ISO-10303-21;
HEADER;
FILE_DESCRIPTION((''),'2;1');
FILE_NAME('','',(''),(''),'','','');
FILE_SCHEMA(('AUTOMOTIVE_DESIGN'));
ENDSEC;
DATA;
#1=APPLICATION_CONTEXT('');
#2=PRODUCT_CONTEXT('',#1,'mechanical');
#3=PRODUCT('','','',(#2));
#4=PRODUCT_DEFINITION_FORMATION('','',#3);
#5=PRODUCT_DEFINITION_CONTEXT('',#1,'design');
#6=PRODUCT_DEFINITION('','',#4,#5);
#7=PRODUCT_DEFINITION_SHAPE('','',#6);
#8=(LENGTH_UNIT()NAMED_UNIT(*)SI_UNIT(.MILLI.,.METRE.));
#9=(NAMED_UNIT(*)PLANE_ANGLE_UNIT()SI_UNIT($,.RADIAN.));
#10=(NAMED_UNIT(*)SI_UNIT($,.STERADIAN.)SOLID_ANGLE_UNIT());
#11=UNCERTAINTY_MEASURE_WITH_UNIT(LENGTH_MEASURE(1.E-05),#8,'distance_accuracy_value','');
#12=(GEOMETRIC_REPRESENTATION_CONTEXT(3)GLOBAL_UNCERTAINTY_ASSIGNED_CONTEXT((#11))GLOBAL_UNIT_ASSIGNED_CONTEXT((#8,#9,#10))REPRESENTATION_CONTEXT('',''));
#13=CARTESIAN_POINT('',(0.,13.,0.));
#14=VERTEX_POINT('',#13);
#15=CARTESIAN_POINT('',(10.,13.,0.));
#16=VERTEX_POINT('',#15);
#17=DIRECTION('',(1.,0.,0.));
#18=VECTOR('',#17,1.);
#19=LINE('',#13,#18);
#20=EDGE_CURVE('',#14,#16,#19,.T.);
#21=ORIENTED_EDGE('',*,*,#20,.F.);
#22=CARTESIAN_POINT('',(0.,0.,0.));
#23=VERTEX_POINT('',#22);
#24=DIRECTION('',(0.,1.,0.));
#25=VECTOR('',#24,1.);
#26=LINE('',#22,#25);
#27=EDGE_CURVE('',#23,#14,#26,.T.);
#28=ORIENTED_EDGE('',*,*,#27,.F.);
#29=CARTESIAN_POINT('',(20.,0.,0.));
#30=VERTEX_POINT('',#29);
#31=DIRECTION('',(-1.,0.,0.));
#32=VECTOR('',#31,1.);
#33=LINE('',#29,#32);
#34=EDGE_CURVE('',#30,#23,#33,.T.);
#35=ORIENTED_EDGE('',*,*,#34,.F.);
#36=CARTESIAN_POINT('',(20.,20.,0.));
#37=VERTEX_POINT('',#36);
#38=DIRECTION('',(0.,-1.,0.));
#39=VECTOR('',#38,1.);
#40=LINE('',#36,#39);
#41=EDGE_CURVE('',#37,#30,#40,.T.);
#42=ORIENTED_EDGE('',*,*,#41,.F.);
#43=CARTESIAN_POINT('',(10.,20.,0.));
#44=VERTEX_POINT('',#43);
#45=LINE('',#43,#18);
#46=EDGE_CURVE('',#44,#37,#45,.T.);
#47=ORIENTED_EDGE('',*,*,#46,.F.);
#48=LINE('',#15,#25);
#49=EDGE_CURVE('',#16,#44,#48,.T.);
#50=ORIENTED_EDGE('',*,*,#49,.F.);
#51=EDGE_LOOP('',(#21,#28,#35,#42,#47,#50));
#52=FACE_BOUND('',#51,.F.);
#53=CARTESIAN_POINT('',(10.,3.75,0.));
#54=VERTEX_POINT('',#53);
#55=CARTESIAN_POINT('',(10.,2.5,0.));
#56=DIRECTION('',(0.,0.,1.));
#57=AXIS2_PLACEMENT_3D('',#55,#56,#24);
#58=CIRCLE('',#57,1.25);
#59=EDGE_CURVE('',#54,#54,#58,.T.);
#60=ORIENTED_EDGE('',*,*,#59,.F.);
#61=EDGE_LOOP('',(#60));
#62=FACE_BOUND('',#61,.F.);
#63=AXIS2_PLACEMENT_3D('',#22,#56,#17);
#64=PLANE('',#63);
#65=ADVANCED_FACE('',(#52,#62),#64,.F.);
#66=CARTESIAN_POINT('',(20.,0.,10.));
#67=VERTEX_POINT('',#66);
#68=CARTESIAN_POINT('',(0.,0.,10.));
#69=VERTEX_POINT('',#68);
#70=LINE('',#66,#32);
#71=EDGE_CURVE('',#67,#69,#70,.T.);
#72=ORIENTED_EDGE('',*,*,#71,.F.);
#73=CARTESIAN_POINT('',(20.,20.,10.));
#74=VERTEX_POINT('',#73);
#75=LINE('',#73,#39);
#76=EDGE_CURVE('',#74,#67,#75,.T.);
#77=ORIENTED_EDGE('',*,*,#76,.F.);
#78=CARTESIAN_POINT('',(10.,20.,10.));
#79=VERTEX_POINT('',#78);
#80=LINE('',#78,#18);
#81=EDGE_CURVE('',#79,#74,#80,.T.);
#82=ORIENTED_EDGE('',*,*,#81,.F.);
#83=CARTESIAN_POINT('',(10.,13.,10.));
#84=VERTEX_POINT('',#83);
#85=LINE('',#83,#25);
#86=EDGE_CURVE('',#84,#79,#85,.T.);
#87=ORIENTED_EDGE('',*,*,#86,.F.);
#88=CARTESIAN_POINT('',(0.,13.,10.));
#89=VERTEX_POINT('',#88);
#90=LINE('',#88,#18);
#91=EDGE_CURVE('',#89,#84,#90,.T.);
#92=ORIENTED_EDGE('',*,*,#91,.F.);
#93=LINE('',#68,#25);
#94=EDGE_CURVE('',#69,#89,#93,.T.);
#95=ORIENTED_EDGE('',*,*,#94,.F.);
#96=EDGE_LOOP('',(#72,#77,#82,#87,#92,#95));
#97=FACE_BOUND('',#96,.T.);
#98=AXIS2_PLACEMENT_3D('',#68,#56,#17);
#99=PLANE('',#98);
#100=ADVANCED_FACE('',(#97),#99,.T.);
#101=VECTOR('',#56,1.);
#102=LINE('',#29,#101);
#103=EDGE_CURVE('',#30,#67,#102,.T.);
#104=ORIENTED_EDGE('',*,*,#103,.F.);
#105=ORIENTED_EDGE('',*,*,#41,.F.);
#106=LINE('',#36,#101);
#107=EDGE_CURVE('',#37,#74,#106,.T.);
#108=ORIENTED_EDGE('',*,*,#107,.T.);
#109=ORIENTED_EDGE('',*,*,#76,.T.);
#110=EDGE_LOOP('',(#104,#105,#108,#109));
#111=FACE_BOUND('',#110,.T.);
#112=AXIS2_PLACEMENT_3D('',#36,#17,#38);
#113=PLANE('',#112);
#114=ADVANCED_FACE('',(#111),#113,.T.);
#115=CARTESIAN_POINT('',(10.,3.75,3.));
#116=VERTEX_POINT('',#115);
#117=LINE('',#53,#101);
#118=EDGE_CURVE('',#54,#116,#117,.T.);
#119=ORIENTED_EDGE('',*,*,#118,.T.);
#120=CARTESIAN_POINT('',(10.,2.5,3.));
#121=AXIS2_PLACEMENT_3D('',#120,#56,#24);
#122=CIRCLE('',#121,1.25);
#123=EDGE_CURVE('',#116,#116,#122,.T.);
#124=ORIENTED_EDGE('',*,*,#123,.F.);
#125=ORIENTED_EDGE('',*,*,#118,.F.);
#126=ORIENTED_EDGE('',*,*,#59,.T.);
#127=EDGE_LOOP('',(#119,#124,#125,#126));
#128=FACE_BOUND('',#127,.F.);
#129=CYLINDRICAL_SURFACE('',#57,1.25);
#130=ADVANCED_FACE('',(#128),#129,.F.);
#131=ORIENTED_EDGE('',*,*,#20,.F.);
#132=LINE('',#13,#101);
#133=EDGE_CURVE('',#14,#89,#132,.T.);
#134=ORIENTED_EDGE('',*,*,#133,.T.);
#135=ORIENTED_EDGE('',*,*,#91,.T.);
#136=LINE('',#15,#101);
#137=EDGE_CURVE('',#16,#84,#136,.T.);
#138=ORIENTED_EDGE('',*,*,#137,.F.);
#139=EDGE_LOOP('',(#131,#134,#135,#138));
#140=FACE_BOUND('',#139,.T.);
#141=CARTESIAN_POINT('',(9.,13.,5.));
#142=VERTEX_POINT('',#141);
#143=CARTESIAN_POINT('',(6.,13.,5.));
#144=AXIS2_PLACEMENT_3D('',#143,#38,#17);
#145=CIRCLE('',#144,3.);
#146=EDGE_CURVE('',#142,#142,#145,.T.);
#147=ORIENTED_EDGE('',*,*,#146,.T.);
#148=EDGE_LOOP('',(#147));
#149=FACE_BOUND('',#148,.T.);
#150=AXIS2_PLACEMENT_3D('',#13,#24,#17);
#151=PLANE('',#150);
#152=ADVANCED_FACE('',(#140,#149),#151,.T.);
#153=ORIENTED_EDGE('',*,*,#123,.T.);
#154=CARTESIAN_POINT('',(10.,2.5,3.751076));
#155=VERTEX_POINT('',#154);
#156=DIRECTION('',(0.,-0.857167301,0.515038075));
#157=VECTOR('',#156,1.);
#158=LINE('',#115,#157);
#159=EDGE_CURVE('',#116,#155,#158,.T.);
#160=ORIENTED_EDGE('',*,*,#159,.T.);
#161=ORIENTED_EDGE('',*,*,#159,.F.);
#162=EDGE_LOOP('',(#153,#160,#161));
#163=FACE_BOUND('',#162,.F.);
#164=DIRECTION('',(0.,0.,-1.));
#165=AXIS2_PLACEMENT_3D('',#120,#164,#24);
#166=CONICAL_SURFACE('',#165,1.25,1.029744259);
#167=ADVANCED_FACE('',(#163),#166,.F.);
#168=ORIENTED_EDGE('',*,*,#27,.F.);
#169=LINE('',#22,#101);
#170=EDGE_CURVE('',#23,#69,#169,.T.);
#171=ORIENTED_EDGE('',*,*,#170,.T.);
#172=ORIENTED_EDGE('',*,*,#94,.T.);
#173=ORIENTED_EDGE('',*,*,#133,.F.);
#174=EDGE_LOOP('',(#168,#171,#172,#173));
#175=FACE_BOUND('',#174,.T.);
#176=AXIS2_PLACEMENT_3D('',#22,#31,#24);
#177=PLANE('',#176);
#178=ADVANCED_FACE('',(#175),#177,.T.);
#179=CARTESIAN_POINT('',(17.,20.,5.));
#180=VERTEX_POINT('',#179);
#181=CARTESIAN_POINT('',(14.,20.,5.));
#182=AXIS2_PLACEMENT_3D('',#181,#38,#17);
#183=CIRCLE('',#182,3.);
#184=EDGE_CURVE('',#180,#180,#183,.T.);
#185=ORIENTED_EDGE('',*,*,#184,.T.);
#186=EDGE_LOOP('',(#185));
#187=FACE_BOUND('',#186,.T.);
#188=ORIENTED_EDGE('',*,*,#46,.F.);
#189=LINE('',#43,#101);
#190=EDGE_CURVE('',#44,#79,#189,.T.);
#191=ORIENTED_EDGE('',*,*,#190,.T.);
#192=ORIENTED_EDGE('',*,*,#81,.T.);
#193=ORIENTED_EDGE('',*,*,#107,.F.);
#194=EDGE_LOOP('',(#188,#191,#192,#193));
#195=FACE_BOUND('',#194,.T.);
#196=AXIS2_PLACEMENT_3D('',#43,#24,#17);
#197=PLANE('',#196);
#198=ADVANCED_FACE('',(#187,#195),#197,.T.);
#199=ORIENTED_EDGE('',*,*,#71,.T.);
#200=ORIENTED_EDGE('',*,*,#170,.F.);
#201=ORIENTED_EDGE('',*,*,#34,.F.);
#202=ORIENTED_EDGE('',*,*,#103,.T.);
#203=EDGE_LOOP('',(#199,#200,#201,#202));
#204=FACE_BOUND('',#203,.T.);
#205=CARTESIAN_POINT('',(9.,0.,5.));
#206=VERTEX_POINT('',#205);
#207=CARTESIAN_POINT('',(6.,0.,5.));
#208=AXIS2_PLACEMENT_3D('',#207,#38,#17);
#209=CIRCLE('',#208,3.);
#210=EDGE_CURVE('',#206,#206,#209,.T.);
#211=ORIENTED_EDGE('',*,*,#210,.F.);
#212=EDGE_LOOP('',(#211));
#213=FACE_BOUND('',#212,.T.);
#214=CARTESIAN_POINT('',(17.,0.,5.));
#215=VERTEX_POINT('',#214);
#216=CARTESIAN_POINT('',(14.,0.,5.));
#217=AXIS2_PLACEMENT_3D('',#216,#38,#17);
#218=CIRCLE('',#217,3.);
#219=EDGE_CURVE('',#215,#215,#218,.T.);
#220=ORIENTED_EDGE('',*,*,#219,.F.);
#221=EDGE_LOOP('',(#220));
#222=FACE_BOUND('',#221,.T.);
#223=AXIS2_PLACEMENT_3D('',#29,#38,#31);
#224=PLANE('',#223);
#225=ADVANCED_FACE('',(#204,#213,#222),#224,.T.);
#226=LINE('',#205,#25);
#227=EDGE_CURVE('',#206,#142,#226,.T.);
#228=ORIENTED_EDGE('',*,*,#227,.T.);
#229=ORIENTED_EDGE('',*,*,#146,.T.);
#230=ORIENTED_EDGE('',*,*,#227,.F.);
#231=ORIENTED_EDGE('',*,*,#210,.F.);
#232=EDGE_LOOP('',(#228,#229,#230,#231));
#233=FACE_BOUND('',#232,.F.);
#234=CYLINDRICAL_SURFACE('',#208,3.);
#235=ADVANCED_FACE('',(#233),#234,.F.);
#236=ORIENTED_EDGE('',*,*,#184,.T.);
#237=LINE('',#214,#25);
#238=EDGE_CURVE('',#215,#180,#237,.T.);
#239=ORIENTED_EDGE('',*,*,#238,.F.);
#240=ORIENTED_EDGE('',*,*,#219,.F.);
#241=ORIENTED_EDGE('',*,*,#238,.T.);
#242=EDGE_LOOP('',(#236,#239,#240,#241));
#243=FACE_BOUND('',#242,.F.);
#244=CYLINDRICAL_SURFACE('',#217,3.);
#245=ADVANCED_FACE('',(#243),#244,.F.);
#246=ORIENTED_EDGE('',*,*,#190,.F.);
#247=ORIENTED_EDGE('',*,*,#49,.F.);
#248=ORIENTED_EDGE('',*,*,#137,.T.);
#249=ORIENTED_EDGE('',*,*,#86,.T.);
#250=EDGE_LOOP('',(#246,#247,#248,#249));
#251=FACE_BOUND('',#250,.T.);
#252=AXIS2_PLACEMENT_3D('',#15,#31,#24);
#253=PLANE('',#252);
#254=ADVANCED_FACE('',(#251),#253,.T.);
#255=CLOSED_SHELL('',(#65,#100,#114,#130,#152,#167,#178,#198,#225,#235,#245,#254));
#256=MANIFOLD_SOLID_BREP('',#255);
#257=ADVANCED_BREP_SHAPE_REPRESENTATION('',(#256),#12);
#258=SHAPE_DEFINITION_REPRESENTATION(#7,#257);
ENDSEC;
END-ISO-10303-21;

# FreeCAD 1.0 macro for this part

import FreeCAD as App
import Part
import Sketcher
from FreeCAD import Vector
Q = App.Units.Quantity

doc = App.newDocument("Part")
params = doc.addObject("Spreadsheet::Sheet", "Params")
for row, (alias, value) in enumerate([
    ("sketch1_width", "20 mm"),
    ("sketch1_height", "7 mm"),
    ("pad1_length", "10 mm"),
    ("sketch2_diameter", "6 mm"),
    ("pocket1_length", "22 mm"),
    ("sketch3_diameter", "2.5 mm"),
    ("hole_diameter", "2.5 mm"),
    ("hole_depth", "3 mm"),
], start=1):
    params.set(f"A{row}", alias)
    params.set(f"B{row}", "=" + value)
    params.setAlias(f"B{row}", alias)

body = doc.addObject("PartDesign::Body", "Body")

sketch1 = body.newObject("Sketcher::SketchObject", "Sketch")
sketch1.AttachmentSupport = (doc.getObject("XY_Plane"), [""])
sketch1.MapMode = "FlatFace"
sketch1.addGeometry([
    Part.LineSegment(Vector(0, 13, 0), Vector(0, 0, 0)),
    Part.LineSegment(Vector(0, 0, 0), Vector(20, 0, 0)),
    Part.LineSegment(Vector(20, 0, 0), Vector(20, 20, 0)),
    Part.LineSegment(Vector(20, 20, 0), Vector(10, 20, 0)),
    Part.LineSegment(Vector(10, 20, 0), Vector(10, 13, 0)),
    Part.LineSegment(Vector(10, 13, 0), Vector(0, 13, 0)),
], False)
sketch1.addConstraint([
    Sketcher.Constraint("Coincident", 0, 2, 1, 1),
    Sketcher.Constraint("Coincident", 1, 2, 2, 1),
    Sketcher.Constraint("Coincident", 2, 2, 3, 1),
    Sketcher.Constraint("Coincident", 3, 2, 4, 1),
    Sketcher.Constraint("Coincident", 4, 2, 5, 1),
    Sketcher.Constraint("Coincident", 5, 2, 0, 1),
    Sketcher.Constraint("Vertical", 0),
    Sketcher.Constraint("Horizontal", 1),
    Sketcher.Constraint("Vertical", 2),
    Sketcher.Constraint("Horizontal", 3),
    Sketcher.Constraint("Vertical", 4),
    Sketcher.Constraint("Horizontal", 5),
    Sketcher.Constraint("Coincident", 0, 2, -1, 1),
    Sketcher.Constraint("Equal", 3, 5),
    Sketcher.Constraint("Equal", 1, 2),
    Sketcher.Constraint("DistanceX", 1, 1, 1, 2, Q("20 mm")),
    Sketcher.Constraint("DistanceY", 4, 2, 4, 1, Q("7 mm")),
])
sketch1.setExpression("Constraints[15]", "Params.sketch1_width")
sketch1.setExpression("Constraints[16]", "Params.sketch1_height")
pad1 = body.newObject("PartDesign::Pad", "Pad")
pad1.Profile = sketch1
pad1.setExpression("Length", "Params.pad1_length")

sketch2 = body.newObject("Sketcher::SketchObject", "Sketch001")
sketch2.AttachmentSupport = (doc.getObject("XZ_Plane"), [""])
sketch2.MapMode = "FlatFace"
sketch2.addGeometry([
    Part.Circle(Vector(6, 5, 0), Vector(0, 0, 1), 3),
    Part.Circle(Vector(14, 5, 0), Vector(0, 0, 1), 3),
], False)
sketch2.addConstraint([
    Sketcher.Constraint("Equal", 0, 1),
    Sketcher.Constraint("Horizontal", 0, 3, 1, 3),
    Sketcher.Constraint("Diameter", 0, Q("6 mm")),
    Sketcher.Constraint("DistanceX", -1, 1, 0, 3, Q("6 mm")),
    Sketcher.Constraint("DistanceY", -1, 1, 0, 3, Q("5 mm")),
    Sketcher.Constraint("DistanceX", -1, 1, 1, 3, Q("14 mm")),
])
sketch2.setExpression("Constraints[2]", "Params.sketch2_diameter")
pocket1 = body.newObject("PartDesign::Pocket", "Pocket")
pocket1.Profile = sketch2
pocket1.setExpression("Length", "Params.pocket1_length")

sketch3 = body.newObject("Sketcher::SketchObject", "Sketch002")
sketch3.AttachmentSupport = (doc.getObject("XY_Plane"), [""])
sketch3.MapMode = "FlatFace"
sketch3.addGeometry(Part.Circle(Vector(10, 2.5, 0), Vector(0, 0, 1), 1.2), False)
sketch3.addConstraint([
    Sketcher.Constraint("Diameter", 0, Q("2.5 mm")),
    Sketcher.Constraint("DistanceX", -1, 1, 0, 3, Q("10 mm")),
    Sketcher.Constraint("DistanceY", -1, 1, 0, 3, Q("2.5 mm")),
])
sketch3.setExpression("Constraints[0]", "Params.sketch3_diameter")
doc.recompute()
hole = body.newObject("PartDesign::Hole", "Hole")
hole.Profile = sketch3
hole.ThreadType = "None"
hole.setExpression("Diameter", "Params.hole_diameter")
hole.DepthType = "Dimension"
hole.setExpression("Depth", "Params.hole_depth")
hole.DrillPoint = "Angled"
hole.DrillPointAngle = 118
hole.Reversed = True

doc.recompute()
